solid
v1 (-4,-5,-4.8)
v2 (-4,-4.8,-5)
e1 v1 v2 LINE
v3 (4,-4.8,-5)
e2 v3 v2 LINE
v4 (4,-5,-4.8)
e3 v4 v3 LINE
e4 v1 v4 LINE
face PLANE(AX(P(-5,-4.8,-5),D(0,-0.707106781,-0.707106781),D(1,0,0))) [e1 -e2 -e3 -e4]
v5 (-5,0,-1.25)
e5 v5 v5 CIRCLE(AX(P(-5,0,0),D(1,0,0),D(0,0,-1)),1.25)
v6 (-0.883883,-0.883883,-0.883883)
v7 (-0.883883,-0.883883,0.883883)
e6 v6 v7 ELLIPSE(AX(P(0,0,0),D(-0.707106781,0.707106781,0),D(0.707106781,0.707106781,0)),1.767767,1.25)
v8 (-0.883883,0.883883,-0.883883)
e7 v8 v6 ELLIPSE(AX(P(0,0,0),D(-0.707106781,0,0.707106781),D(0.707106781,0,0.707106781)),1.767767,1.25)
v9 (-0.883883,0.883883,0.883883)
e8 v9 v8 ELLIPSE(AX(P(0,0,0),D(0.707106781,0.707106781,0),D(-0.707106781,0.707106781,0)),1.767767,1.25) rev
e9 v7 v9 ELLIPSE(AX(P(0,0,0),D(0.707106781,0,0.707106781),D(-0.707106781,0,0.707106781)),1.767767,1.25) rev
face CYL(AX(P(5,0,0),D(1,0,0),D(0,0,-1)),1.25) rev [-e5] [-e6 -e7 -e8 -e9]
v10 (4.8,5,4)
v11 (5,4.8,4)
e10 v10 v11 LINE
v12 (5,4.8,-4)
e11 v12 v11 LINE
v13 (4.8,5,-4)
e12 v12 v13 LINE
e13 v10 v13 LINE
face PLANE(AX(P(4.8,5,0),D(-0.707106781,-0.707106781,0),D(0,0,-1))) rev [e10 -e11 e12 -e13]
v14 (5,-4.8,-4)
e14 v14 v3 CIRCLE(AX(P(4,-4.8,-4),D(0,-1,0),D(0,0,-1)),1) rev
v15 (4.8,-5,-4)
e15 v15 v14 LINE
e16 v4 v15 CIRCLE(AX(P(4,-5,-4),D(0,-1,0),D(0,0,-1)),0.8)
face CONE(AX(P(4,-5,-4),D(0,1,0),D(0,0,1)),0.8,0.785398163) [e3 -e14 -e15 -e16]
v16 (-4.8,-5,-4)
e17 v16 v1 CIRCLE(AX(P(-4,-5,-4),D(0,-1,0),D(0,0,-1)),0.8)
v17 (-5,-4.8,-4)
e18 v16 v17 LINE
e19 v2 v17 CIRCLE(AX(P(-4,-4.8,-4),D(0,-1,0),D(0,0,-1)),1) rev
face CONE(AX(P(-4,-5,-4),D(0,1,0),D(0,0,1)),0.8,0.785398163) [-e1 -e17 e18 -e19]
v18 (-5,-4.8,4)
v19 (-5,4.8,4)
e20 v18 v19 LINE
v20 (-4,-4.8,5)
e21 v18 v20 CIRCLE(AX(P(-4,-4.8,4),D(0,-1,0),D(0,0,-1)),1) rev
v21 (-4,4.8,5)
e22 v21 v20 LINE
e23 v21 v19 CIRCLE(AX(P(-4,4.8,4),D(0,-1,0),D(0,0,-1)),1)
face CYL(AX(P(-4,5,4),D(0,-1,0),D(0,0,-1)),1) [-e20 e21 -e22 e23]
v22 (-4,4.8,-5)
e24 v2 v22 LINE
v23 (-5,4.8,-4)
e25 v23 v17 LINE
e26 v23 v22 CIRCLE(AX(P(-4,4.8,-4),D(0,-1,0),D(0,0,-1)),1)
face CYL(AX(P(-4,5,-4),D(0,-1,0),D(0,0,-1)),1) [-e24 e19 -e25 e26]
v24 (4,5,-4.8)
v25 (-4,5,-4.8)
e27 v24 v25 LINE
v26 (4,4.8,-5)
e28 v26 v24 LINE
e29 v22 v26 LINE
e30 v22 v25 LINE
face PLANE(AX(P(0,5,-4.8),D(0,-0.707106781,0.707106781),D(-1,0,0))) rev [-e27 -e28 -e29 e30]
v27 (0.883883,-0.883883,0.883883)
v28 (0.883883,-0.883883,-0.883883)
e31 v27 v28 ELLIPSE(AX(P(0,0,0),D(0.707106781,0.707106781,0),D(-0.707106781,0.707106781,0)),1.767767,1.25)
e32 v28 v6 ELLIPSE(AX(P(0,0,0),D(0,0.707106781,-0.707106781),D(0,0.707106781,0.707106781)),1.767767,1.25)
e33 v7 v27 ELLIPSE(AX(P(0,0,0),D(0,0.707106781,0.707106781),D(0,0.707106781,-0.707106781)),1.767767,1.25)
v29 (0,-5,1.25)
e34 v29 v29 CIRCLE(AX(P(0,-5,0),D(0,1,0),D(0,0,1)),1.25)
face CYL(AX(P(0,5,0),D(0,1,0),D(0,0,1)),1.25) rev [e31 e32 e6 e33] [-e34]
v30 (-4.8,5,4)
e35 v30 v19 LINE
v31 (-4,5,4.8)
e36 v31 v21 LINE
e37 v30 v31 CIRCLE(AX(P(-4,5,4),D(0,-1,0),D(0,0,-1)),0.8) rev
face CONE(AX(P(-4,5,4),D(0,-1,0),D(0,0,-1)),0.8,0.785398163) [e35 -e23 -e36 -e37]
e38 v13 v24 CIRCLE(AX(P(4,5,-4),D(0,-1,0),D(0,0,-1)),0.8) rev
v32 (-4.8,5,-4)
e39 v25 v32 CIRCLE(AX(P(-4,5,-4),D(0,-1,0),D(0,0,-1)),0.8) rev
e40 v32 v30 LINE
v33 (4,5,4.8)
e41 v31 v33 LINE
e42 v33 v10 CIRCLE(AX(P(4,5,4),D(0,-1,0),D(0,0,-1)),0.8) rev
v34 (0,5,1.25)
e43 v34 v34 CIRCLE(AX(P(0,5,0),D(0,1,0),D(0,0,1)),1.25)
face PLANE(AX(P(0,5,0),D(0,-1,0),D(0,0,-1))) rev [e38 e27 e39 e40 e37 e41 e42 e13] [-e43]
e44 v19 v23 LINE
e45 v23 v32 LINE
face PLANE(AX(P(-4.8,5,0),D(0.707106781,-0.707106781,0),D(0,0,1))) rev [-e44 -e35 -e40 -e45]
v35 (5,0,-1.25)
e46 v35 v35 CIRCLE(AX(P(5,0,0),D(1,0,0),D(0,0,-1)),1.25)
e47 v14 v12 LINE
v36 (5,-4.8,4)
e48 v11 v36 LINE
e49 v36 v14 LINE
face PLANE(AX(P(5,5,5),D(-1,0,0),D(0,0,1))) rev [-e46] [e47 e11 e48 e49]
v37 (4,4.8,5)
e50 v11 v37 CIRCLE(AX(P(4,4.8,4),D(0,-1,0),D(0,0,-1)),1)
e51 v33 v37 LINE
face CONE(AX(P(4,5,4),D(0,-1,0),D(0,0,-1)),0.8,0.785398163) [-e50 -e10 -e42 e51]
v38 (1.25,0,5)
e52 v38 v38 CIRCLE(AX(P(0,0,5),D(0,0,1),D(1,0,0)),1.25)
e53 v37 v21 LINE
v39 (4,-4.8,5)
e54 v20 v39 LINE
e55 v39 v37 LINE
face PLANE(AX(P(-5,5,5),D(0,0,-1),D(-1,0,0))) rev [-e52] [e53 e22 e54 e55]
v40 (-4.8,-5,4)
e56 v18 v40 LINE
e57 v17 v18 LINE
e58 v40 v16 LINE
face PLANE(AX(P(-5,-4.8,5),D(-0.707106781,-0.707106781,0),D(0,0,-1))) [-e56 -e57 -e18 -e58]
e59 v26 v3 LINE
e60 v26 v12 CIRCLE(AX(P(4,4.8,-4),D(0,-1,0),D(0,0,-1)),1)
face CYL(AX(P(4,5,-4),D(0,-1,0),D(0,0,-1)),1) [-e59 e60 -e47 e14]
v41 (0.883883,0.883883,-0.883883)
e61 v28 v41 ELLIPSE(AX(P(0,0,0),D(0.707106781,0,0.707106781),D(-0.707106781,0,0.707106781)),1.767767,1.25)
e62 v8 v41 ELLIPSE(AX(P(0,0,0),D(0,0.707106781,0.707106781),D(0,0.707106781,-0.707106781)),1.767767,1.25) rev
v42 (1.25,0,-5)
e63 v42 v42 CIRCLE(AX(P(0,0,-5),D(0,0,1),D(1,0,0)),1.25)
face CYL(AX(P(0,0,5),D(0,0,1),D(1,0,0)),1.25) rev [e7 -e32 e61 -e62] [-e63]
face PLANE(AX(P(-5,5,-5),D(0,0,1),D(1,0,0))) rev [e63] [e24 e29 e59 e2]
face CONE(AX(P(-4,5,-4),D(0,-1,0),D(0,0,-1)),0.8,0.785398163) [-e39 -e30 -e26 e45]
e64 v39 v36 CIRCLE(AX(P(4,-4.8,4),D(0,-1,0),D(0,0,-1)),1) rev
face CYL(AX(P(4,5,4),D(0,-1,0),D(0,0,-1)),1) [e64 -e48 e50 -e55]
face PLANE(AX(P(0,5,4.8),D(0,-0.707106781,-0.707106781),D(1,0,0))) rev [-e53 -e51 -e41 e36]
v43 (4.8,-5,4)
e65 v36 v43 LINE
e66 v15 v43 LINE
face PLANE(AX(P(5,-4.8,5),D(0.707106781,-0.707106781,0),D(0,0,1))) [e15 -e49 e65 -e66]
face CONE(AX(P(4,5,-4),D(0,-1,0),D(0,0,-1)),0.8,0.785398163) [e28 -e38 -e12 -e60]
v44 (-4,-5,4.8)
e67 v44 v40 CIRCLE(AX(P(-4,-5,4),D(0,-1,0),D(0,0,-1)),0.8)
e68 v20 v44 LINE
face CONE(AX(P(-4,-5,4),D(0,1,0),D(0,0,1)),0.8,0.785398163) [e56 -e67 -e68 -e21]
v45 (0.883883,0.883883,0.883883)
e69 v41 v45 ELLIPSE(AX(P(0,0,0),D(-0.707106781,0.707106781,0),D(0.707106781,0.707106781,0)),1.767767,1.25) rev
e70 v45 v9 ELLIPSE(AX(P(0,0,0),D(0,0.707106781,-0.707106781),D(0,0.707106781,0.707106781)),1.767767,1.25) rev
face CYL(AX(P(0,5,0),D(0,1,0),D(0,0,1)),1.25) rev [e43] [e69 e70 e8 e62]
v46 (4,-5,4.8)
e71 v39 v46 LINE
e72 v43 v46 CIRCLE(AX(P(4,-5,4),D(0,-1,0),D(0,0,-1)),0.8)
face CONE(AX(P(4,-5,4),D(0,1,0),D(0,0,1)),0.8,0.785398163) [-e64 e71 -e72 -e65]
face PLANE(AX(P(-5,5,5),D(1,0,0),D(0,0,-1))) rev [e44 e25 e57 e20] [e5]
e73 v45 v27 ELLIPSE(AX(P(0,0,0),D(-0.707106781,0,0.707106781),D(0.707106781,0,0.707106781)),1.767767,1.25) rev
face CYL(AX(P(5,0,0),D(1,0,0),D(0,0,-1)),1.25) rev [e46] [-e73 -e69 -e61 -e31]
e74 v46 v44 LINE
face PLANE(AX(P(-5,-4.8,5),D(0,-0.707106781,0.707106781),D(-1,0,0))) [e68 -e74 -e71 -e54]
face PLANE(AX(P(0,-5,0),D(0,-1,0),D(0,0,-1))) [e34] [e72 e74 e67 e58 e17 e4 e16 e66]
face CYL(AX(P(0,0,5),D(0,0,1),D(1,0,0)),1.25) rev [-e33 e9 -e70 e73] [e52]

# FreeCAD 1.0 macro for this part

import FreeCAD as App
import Part
import Sketcher


def edges_at(feature, points):
    """Names of the edges that pass closest to the given points."""
    edges = feature.Shape.Edges
    near = lambda p: min(range(len(edges)), key=lambda i: edges[i].distToShape(Part.Vertex(*p))[0])
    return sorted({f"Edge{near(p) + 1}" for p in points})

doc = App.newDocument("Part")
body = doc.addObject("PartDesign::Body", "Body")

# Sketch on XZ plane
sketch1 = body.newObject("Sketcher::SketchObject", "Sketch")
sketch1.AttachmentSupport = (doc.getObject("XZ_Plane"), [""])
sketch1.MapMode = "FlatFace"
sketch1.addGeometry(Part.LineSegment(App.Vector(-5, -5, 0), App.Vector(-5, 5, 0)), False)
sketch1.addGeometry(Part.LineSegment(App.Vector(-5, 5, 0), App.Vector(5, 5, 0)), False)
sketch1.addGeometry(Part.LineSegment(App.Vector(5, 5, 0), App.Vector(5, -5, 0)), False)
sketch1.addGeometry(Part.LineSegment(App.Vector(5, -5, 0), App.Vector(-5, -5, 0)), False)
sketch1.addConstraint(Sketcher.Constraint("Coincident", 0, 2, 1, 1))
sketch1.addConstraint(Sketcher.Constraint("Coincident", 1, 2, 2, 1))
sketch1.addConstraint(Sketcher.Constraint("Coincident", 2, 2, 3, 1))
sketch1.addConstraint(Sketcher.Constraint("Coincident", 3, 2, 0, 1))
sketch1.addConstraint(Sketcher.Constraint("Vertical", 0))
sketch1.addConstraint(Sketcher.Constraint("Horizontal", 1))
sketch1.addConstraint(Sketcher.Constraint("Vertical", 2))
sketch1.addConstraint(Sketcher.Constraint("Horizontal", 3))
sketch1.addConstraint(Sketcher.Constraint("Symmetric", 0, 2, 2, 2, -1, 1))
sketch1.addConstraint(Sketcher.Constraint("Equal", 3, 0))
sketch1.addConstraint(Sketcher.Constraint("DistanceX", 1, 1, 1, 2, 10.0))
pad1 = body.newObject("PartDesign::Pad", "Pad")
pad1.Profile = sketch1
pad1.Length = 10
pad1.Midplane = True

# Sketch on XZ plane
sketch2 = body.newObject("Sketcher::SketchObject", "Sketch001")
sketch2.AttachmentSupport = (doc.getObject("XZ_Plane"), [""])
sketch2.MapMode = "FlatFace"
sketch2.AttachmentOffset = App.Placement(App.Vector(0, 0, -5), App.Rotation())
sketch2.addGeometry(Part.Circle(App.Vector(0, 0, 0), App.Vector(0, 0, 1), 1.25), False)
sketch2.addConstraint(Sketcher.Constraint("Coincident", 0, 3, -1, 1))
sketch2.addConstraint(Sketcher.Constraint("Diameter", 0, 2.5))
doc.recompute()
hole = body.newObject("PartDesign::Hole", "Hole")
hole.Profile = sketch2
hole.ThreadType = "None"
hole.Diameter = 2.5
hole.DepthType = "ThroughAll"
hole.Reversed = True

# Sketch on XY plane
sketch3 = body.newObject("Sketcher::SketchObject", "Sketch002")
sketch3.AttachmentSupport = (doc.getObject("XY_Plane"), [""])
sketch3.MapMode = "FlatFace"
sketch3.AttachmentOffset = App.Placement(App.Vector(0, 0, 5), App.Rotation())
sketch3.addGeometry(Part.Circle(App.Vector(0, 0, 0), App.Vector(0, 0, 1), 1.25), False)
sketch3.addConstraint(Sketcher.Constraint("Coincident", 0, 3, -1, 1))
sketch3.addConstraint(Sketcher.Constraint("Diameter", 0, 2.5))
doc.recompute()
hole2 = body.newObject("PartDesign::Hole", "Hole001")
hole2.Profile = sketch3
hole2.ThreadType = "None"
hole2.Diameter = 2.5
hole2.DepthType = "ThroughAll"

# Sketch on YZ plane
sketch4 = body.newObject("Sketcher::SketchObject", "Sketch003")
sketch4.AttachmentSupport = (doc.getObject("YZ_Plane"), [""])
sketch4.MapMode = "FlatFace"
sketch4.AttachmentOffset = App.Placement(App.Vector(0, 0, 5), App.Rotation())
sketch4.addGeometry(Part.Circle(App.Vector(0, 0, 0), App.Vector(0, 0, 1), 1.25), False)
sketch4.addConstraint(Sketcher.Constraint("Coincident", 0, 3, -1, 1))
sketch4.addConstraint(Sketcher.Constraint("Diameter", 0, 2.5))
doc.recompute()
hole3 = body.newObject("PartDesign::Hole", "Hole002")
hole3.Profile = sketch4
hole3.ThreadType = "None"
hole3.Diameter = 2.5
hole3.DepthType = "ThroughAll"
doc.recompute()

fillet = body.newObject("PartDesign::Fillet", "Fillet")
fillet.Base = (hole3, edges_at(hole3, [
    (5, 0, 5),
    (-5, 0, 5),
    (-5, 0, -5),
    (5, 0, -5),
]))
fillet.Radius = 1
doc.recompute()

chamfer = body.newObject("PartDesign::Chamfer", "Chamfer")
chamfer.Base = (fillet, edges_at(fillet, [
    (0, -5, -5),
    (0, 5, -5),
    (5, -5, 0),
    (0, -5, 5),
    (-5, -5, 0),
    (-4.707, -5, -4.707),
    (-4.707, -5, 4.707),
    (4.707, -5, 4.707),
    (4.707, -5, -4.707),
    (5, 5, 0),
    (-5, 5, 0),
    (0, 5, 5),
    (-4.707, 5, -4.707),
    (-4.707, 5, 4.707),
    (4.707, 5, 4.707),
    (4.707, 5, -4.707),
]))
chamfer.Size = 0.2

doc.recompute()
